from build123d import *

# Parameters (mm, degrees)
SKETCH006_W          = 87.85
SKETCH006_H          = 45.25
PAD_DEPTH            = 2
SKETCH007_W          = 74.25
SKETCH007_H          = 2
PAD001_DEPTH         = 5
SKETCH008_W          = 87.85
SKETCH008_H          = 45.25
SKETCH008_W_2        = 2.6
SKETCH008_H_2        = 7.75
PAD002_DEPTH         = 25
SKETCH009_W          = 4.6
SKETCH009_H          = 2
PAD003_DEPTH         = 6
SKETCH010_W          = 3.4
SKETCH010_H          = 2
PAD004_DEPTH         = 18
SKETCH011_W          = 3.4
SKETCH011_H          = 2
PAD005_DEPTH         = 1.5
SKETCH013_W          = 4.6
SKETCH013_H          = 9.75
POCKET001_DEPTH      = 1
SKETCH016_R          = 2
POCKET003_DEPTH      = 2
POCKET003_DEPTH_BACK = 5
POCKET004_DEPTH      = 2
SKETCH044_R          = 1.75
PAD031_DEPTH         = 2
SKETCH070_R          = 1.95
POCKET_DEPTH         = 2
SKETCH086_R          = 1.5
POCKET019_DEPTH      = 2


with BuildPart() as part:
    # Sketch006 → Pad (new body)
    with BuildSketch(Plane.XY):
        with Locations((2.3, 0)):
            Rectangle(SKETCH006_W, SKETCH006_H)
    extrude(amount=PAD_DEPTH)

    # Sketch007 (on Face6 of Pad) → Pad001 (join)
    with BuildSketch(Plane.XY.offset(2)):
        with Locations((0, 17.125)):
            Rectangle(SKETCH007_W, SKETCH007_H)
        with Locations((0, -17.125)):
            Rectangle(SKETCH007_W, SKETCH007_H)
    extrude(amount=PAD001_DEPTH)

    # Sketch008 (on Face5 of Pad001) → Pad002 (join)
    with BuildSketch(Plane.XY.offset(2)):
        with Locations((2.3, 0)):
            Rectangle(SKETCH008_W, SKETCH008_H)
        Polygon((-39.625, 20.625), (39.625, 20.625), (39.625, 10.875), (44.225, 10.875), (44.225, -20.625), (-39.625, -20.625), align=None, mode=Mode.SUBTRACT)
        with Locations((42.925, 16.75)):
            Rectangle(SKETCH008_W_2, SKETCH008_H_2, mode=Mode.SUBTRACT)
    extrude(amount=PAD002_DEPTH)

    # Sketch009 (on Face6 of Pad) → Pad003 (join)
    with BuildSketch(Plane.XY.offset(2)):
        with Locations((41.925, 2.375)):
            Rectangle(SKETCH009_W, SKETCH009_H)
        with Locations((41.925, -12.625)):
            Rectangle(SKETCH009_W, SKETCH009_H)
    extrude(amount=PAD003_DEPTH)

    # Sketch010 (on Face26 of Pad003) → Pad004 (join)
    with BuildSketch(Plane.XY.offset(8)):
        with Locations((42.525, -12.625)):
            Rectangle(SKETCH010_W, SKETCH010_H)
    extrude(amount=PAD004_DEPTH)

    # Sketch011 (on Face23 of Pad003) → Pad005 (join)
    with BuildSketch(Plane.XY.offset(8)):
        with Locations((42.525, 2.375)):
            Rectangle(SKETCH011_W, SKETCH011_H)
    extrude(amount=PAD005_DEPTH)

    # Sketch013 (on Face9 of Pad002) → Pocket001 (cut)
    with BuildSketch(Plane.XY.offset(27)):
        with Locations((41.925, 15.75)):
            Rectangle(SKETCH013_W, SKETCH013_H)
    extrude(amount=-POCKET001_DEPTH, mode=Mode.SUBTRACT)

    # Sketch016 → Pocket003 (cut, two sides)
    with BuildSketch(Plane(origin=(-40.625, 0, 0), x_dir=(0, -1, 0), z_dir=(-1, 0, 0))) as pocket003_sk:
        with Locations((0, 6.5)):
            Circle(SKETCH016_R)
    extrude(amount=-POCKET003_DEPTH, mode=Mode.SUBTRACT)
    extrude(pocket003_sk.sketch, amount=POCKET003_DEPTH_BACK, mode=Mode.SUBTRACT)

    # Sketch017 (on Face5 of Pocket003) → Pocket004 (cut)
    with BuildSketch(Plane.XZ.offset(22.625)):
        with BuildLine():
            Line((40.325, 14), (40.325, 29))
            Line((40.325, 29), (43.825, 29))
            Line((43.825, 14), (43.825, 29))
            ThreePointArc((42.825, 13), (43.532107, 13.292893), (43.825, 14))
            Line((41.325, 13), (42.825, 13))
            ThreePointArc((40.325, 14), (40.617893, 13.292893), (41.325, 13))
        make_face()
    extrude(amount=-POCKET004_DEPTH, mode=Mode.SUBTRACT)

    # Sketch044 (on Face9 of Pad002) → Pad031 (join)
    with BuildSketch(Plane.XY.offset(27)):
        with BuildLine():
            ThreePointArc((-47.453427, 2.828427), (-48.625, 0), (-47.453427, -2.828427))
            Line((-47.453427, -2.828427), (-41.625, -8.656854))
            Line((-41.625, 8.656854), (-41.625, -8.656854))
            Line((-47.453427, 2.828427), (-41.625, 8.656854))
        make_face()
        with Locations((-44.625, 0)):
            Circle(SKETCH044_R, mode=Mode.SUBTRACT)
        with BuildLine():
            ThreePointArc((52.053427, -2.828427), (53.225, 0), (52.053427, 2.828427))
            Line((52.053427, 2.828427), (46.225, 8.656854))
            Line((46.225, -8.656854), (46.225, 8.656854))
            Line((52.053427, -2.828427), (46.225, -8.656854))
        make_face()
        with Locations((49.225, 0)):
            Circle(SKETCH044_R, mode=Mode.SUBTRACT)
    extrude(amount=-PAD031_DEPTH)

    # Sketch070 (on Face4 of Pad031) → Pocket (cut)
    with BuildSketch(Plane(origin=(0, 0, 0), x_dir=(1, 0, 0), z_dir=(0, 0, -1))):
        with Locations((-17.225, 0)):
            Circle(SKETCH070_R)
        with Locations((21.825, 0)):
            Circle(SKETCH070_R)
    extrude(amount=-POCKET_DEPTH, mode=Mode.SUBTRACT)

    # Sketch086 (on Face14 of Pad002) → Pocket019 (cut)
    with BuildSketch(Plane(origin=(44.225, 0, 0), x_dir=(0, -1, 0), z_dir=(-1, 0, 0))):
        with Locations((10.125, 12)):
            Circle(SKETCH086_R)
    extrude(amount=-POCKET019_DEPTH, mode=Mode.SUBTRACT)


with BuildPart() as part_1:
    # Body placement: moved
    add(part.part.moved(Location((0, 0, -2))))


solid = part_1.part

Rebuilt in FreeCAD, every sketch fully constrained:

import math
import FreeCAD as App
import Part
import Sketcher
from FreeCAD import Vector


def add_polygon(sketch, points):
    """Adds a closed chain of lines whose ends are joined by coincident constraints."""
    first, n = sketch.GeometryCount, len(points)
    for a, b in zip(points, points[1:] + points[:1]):
        sketch.addGeometry(Part.LineSegment(App.Vector(*a, 0), App.Vector(*b, 0)), False)
    for i in range(n):
        sketch.addConstraint(Sketcher.Constraint("Coincident", first + i, 2, first + (i + 1) % n, 1))

doc = App.newDocument("Part")
params = doc.addObject("Spreadsheet::Sheet", "Params")
for row, (alias, value) in enumerate([
    ("sketch1_width", "87.85 mm"),
    ("sketch1_height", "45.25 mm"),
    ("pad1_length", "2 mm"),
    ("sketch2_height", "2 mm"),
    ("sketch2_width", "74.25 mm"),
    ("pad2_length", "5 mm"),
    ("sketch3_width", "4.6 mm"),
    ("sketch3_width2", "2.6 mm"),
    ("sketch3_height", "31.5 mm"),
    ("sketch3_width3", "87.85 mm"),
    ("sketch3_height2", "45.25 mm"),
    ("pad3_length", "25 mm"),
    ("sketch4_height", "2 mm"),
    ("sketch4_width", "4.6 mm"),
    ("pad4_length", "6 mm"),
    ("sketch5_height", "2 mm"),
    ("sketch5_width", "3.4 mm"),
    ("pad5_length", "18 mm"),
    ("sketch6_height", "2 mm"),
    ("sketch6_width", "3.4 mm"),
    ("pad6_length", "1.5 mm"),
    ("sketch7_width", "4.6 mm"),
    ("sketch7_height", "9.75 mm"),
    ("pocket1_length", "1 mm"),
    ("sketch8_diameter", "4 mm"),
    ("pocket2_length", "2 mm"),
    ("pocket2_length2", "5 mm"),
    ("sketch9_radius", "0.999999 mm"),
    ("sketch9_height", "15 mm"),
    ("sketch9_width", "1.5 mm"),
    ("pocket3_length", "2 mm"),
    ("sketch10_radius", "3.999999 mm"),
    ("sketch10_diameter", "3.5 mm"),
    ("pad7_length", "2 mm"),
    ("sketch11_diameter", "3.9 mm"),
    ("pocket4_length", "2 mm"),
    ("sketch12_diameter", "3 mm"),
    ("pocket5_length", "2 mm"),
], start=1):
    params.set(f"A{row}", alias)
    params.set(f"B{row}", "=" + value)
    params.setAlias(f"B{row}", alias)

body = doc.addObject("PartDesign::Body", "Body")

sketch1 = doc.addObject("Sketcher::SketchObject", "Sketch")
body.addObject(sketch1)
sketch1.AttachmentSupport = (doc.XY_Plane, [""])
sketch1.MapMode = "FlatFace"
add_polygon(sketch1, [(-42, 23), (-42, -23), (46, -23), (46, 23)])
sketch1.addConstraint(Sketcher.Constraint("Vertical", 0))
sketch1.addConstraint(Sketcher.Constraint("Horizontal", 1))
sketch1.addConstraint(Sketcher.Constraint("Vertical", 2))
sketch1.addConstraint(Sketcher.Constraint("Horizontal", 3))
sketch1.addConstraint(Sketcher.Constraint("DistanceX", 1, 1, 1, 2, 87.85))
sketch1.addConstraint(Sketcher.Constraint("DistanceY", 0, 2, 0, 1, 45.25))
sketch1.addConstraint(Sketcher.Constraint("DistanceX", 0, 2, -1, 1, 41.625))
sketch1.addConstraint(Sketcher.Constraint("DistanceY", 0, 2, -1, 1, 22.625))
sketch1.setExpression("Constraints[8]", "Params.sketch1_width")
sketch1.setExpression("Constraints[9]", "Params.sketch1_height")
pad1 = doc.addObject("PartDesign::Pad", "Pad")
body.addObject(pad1)
pad1.Profile = sketch1
pad1.setExpression("Length", "Params.pad1_length")

sketch2 = doc.addObject("Sketcher::SketchObject", "Sketch001")
body.addObject(sketch2)
sketch2.AttachmentSupport = (doc.XY_Plane, [""])
sketch2.MapMode = "FlatFace"
sketch2.AttachmentOffset = App.Placement(Vector(0, 0, 2), App.Rotation())
add_polygon(sketch2, [(-37.1, 18.1), (-37.1, 16.1), (37.1, 16.1), (37.1, 18.1)])
add_polygon(sketch2, [(-37.1, -16.1), (-37.1, -18.1), (37.1, -18.1), (37.1, -16.1)])
sketch2.addConstraint(Sketcher.Constraint("Vertical", 0))
sketch2.addConstraint(Sketcher.Constraint("Horizontal", 1))
sketch2.addConstraint(Sketcher.Constraint("Vertical", 2))
sketch2.addConstraint(Sketcher.Constraint("Horizontal", 3))
sketch2.addConstraint(Sketcher.Constraint("Vertical", 4))
sketch2.addConstraint(Sketcher.Constraint("Horizontal", 5))
sketch2.addConstraint(Sketcher.Constraint("Vertical", 6))
sketch2.addConstraint(Sketcher.Constraint("Horizontal", 7))
sketch2.addConstraint(Sketcher.Constraint("Symmetric", 2, 2, 4, 2, -1, 1))
sketch2.addConstraint(Sketcher.Constraint("Symmetric", 0, 2, 6, 2, -1, 1))
sketch2.addConstraint(Sketcher.Constraint("Vertical", 3, 2, 4, 2))
sketch2.addConstraint(Sketcher.Constraint("DistanceY", 0, 2, 0, 1, 2.0))
sketch2.addConstraint(Sketcher.Constraint("DistanceX", 1, 1, 1, 2, 74.25))
sketch2.addConstraint(Sketcher.Constraint("DistanceY", 4, 2, 0, 2, 34.25))
sketch2.setExpression("Constraints[19]", "Params.sketch2_height")
sketch2.setExpression("Constraints[20]", "Params.sketch2_width")
pad2 = doc.addObject("PartDesign::Pad", "Pad001")
body.addObject(pad2)
pad2.Profile = sketch2
pad2.setExpression("Length", "Params.pad2_length")

sketch3 = doc.addObject("Sketcher::SketchObject", "Sketch002")
body.addObject(sketch3)
sketch3.AttachmentSupport = (doc.XY_Plane, [""])
sketch3.MapMode = "FlatFace"
sketch3.AttachmentOffset = App.Placement(Vector(0, 0, 2), App.Rotation())
add_polygon(sketch3, [(-41.6, 22.6), (-41.6, -22.6), (46.2, -22.6), (46.2, 22.6)])
add_polygon(sketch3, [(-39.6, -20.6), (-39.6, 20.6), (39.6, 20.6), (39.6, 10.9), (44.2, 10.9), (44.2, -20.6)])
add_polygon(sketch3, [(44.2, 12.9), (41.6, 12.9), (41.6, 20.6), (44.2, 20.6)])
sketch3.addConstraint(Sketcher.Constraint("Vertical", 0))
sketch3.addConstraint(Sketcher.Constraint("Horizontal", 1))
sketch3.addConstraint(Sketcher.Constraint("Vertical", 2))
sketch3.addConstraint(Sketcher.Constraint("Horizontal", 3))
sketch3.addConstraint(Sketcher.Constraint("Vertical", 4))
sketch3.addConstraint(Sketcher.Constraint("Horizontal", 5))
sketch3.addConstraint(Sketcher.Constraint("Vertical", 6))
sketch3.addConstraint(Sketcher.Constraint("Horizontal", 7))
sketch3.addConstraint(Sketcher.Constraint("Vertical", 8))
sketch3.addConstraint(Sketcher.Constraint("Horizontal", 9))
sketch3.addConstraint(Sketcher.Constraint("Horizontal", 10))
sketch3.addConstraint(Sketcher.Constraint("Vertical", 11))
sketch3.addConstraint(Sketcher.Constraint("Horizontal", 12))
sketch3.addConstraint(Sketcher.Constraint("Vertical", 13))
sketch3.addConstraint(Sketcher.Constraint("Symmetric", 5, 2, 9, 2, -1, 1))
sketch3.addConstraint(Sketcher.Constraint("Symmetric", 8, 2, 12, 2, -1))
sketch3.addConstraint(Sketcher.Constraint("DistanceX", 7, 1, 7, 2, 4.6))
sketch3.addConstraint(Sketcher.Constraint("DistanceX", 10, 2, 10, 1, 2.6))
sketch3.addConstraint(Sketcher.Constraint("DistanceY", 8, 2, 8, 1, 31.5))
sketch3.addConstraint(Sketcher.Constraint("DistanceX", 3, 2, 4, 2, 2.0))
sketch3.addConstraint(Sketcher.Constraint("DistanceY", 4, 2, 3, 2, 2.0))
sketch3.addConstraint(Sketcher.Constraint("DistanceX", 7, 2, 2, 2, 2.0))
sketch3.addConstraint(Sketcher.Constraint("DistanceY", 1, 2, 8, 2, 2.0))
sketch3.addConstraint(Sketcher.Constraint("DistanceY", 6, 2, 10, 2, 2.0))
sketch3.addConstraint(Sketcher.Constraint("DistanceX", 1, 1, 1, 2, 87.85))
sketch3.addConstraint(Sketcher.Constraint("DistanceY", 0, 2, 0, 1, 45.25))
sketch3.setExpression("Constraints[30]", "Params.sketch3_width")
sketch3.setExpression("Constraints[31]", "Params.sketch3_width2")
sketch3.setExpression("Constraints[32]", "Params.sketch3_height")
sketch3.setExpression("Constraints[38]", "Params.sketch3_width3")
sketch3.setExpression("Constraints[39]", "Params.sketch3_height2")
pad3 = doc.addObject("PartDesign::Pad", "Pad002")
body.addObject(pad3)
pad3.Profile = sketch3
pad3.setExpression("Length", "Params.pad3_length")

sketch4 = doc.addObject("Sketcher::SketchObject", "Sketch003")
body.addObject(sketch4)
sketch4.AttachmentSupport = (doc.XY_Plane, [""])
sketch4.MapMode = "FlatFace"
sketch4.AttachmentOffset = App.Placement(Vector(0, 0, 2), App.Rotation())
add_polygon(sketch4, [(39.6, 3.4), (39.6, 1.4), (44.2, 1.4), (44.2, 3.4)])
add_polygon(sketch4, [(39.6, -11.6), (39.6, -13.6), (44.2, -13.6), (44.2, -11.6)])
sketch4.addConstraint(Sketcher.Constraint("Vertical", 0))
sketch4.addConstraint(Sketcher.Constraint("Horizontal", 1))
sketch4.addConstraint(Sketcher.Constraint("Vertical", 2))
sketch4.addConstraint(Sketcher.Constraint("Horizontal", 3))
sketch4.addConstraint(Sketcher.Constraint("Vertical", 4))
sketch4.addConstraint(Sketcher.Constraint("Horizontal", 5))
sketch4.addConstraint(Sketcher.Constraint("Vertical", 6))
sketch4.addConstraint(Sketcher.Constraint("Horizontal", 7))
sketch4.addConstraint(Sketcher.Constraint("Vertical", 3, 2, 4, 2))
sketch4.addConstraint(Sketcher.Constraint("Vertical", 2, 2, 5, 2))
sketch4.addConstraint(Sketcher.Constraint("Equal", 2, 4))
sketch4.addConstraint(Sketcher.Constraint("DistanceY", 0, 2, 0, 1, 2.0))
sketch4.addConstraint(Sketcher.Constraint("DistanceX", 1, 1, 1, 2, 4.6))
sketch4.addConstraint(Sketcher.Constraint("DistanceY", 4, 2, 0, 2, 15.0))
sketch4.addConstraint(Sketcher.Constraint("DistanceX", -1, 1, 0, 2, 39.625))
sketch4.addConstraint(Sketcher.Constraint("DistanceY", -1, 1, 0, 2, 1.375))
sketch4.setExpression("Constraints[19]", "Params.sketch4_height")
sketch4.setExpression("Constraints[20]", "Params.sketch4_width")
pad4 = doc.addObject("PartDesign::Pad", "Pad003")
body.addObject(pad4)
pad4.Profile = sketch4
pad4.setExpression("Length", "Params.pad4_length")

sketch5 = doc.addObject("Sketcher::SketchObject", "Sketch004")
body.addObject(sketch5)
sketch5.AttachmentSupport = (doc.XY_Plane, [""])
sketch5.MapMode = "FlatFace"
sketch5.AttachmentOffset = App.Placement(Vector(0, 0, 8), App.Rotation())
add_polygon(sketch5, [(40.8, -11.6), (40.8, -13.6), (44.2, -13.6), (44.2, -11.6)])
sketch5.addConstraint(Sketcher.Constraint("Vertical", 0))
sketch5.addConstraint(Sketcher.Constraint("Horizontal", 1))
sketch5.addConstraint(Sketcher.Constraint("Vertical", 2))
sketch5.addConstraint(Sketcher.Constraint("Horizontal", 3))
sketch5.addConstraint(Sketcher.Constraint("DistanceY", 0, 2, 0, 1, 2.0))
sketch5.addConstraint(Sketcher.Constraint("DistanceX", 1, 1, 1, 2, 3.4))
sketch5.addConstraint(Sketcher.Constraint("DistanceX", -1, 1, 0, 2, 40.825))
sketch5.addConstraint(Sketcher.Constraint("DistanceY", 0, 2, -1, 1, 13.625))
sketch5.setExpression("Constraints[8]", "Params.sketch5_height")
sketch5.setExpression("Constraints[9]", "Params.sketch5_width")
pad5 = doc.addObject("PartDesign::Pad", "Pad004")
body.addObject(pad5)
pad5.Profile = sketch5
pad5.setExpression("Length", "Params.pad5_length")

sketch6 = doc.addObject("Sketcher::SketchObject", "Sketch005")
body.addObject(sketch6)
sketch6.AttachmentSupport = (doc.XY_Plane, [""])
sketch6.MapMode = "FlatFace"
sketch6.AttachmentOffset = App.Placement(Vector(0, 0, 8), App.Rotation())
add_polygon(sketch6, [(40.8, 3.4), (40.8, 1.4), (44.2, 1.4), (44.2, 3.4)])
sketch6.addConstraint(Sketcher.Constraint("Vertical", 0))
sketch6.addConstraint(Sketcher.Constraint("Horizontal", 1))
sketch6.addConstraint(Sketcher.Constraint("Vertical", 2))
sketch6.addConstraint(Sketcher.Constraint("Horizontal", 3))
sketch6.addConstraint(Sketcher.Constraint("DistanceY", 0, 2, 0, 1, 2.0))
sketch6.addConstraint(Sketcher.Constraint("DistanceX", 1, 1, 1, 2, 3.4))
sketch6.addConstraint(Sketcher.Constraint("DistanceX", -1, 1, 0, 2, 40.825))
sketch6.addConstraint(Sketcher.Constraint("DistanceY", -1, 1, 0, 2, 1.375))
sketch6.setExpression("Constraints[8]", "Params.sketch6_height")
sketch6.setExpression("Constraints[9]", "Params.sketch6_width")
pad6 = doc.addObject("PartDesign::Pad", "Pad005")
body.addObject(pad6)
pad6.Profile = sketch6
pad6.setExpression("Length", "Params.pad6_length")

sketch7 = doc.addObject("Sketcher::SketchObject", "Sketch006")
body.addObject(sketch7)
sketch7.AttachmentSupport = (doc.XY_Plane, [""])
sketch7.MapMode = "FlatFace"
sketch7.AttachmentOffset = App.Placement(Vector(0, 0, 27), App.Rotation())
add_polygon(sketch7, [(39.6, 20.6), (39.6, 10.9), (44.2, 10.9), (44.2, 20.6)])
sketch7.addConstraint(Sketcher.Constraint("Vertical", 0))
sketch7.addConstraint(Sketcher.Constraint("Horizontal", 1))
sketch7.addConstraint(Sketcher.Constraint("Vertical", 2))
sketch7.addConstraint(Sketcher.Constraint("Horizontal", 3))
sketch7.addConstraint(Sketcher.Constraint("DistanceX", 1, 1, 1, 2, 4.6))
sketch7.addConstraint(Sketcher.Constraint("DistanceY", 0, 2, 0, 1, 9.75))
sketch7.addConstraint(Sketcher.Constraint("DistanceX", -1, 1, 0, 2, 39.625))
sketch7.addConstraint(Sketcher.Constraint("DistanceY", -1, 1, 0, 2, 10.875))
sketch7.setExpression("Constraints[8]", "Params.sketch7_width")
sketch7.setExpression("Constraints[9]", "Params.sketch7_height")
pocket1 = doc.addObject("PartDesign::Pocket", "Pocket")
body.addObject(pocket1)
pocket1.Profile = sketch7
pocket1.setExpression("Length", "Params.pocket1_length")

sketch8 = doc.addObject("Sketcher::SketchObject", "Sketch007")
body.addObject(sketch8)
sketch8.AttachmentSupport = (doc.YZ_Plane, [""])
sketch8.MapMode = "FlatFace"
sketch8.AttachmentOffset = App.Placement(Vector(0, 0, -40.625), App.Rotation())
sketch8.addGeometry(Part.Circle(Vector(0, 6.5, 0), Vector(0, 0, 1), 2), False)
sketch8.addConstraint(Sketcher.Constraint("PointOnObject", 0, 3, -2))
sketch8.addConstraint(Sketcher.Constraint("Diameter", 0, 4.0))
sketch8.addConstraint(Sketcher.Constraint("DistanceY", -1, 1, 0, 3, 6.5))
sketch8.setExpression("Constraints[1]", "Params.sketch8_diameter")
pocket2 = doc.addObject("PartDesign::Pocket", "Pocket001")
body.addObject(pocket2)
pocket2.Profile = sketch8
pocket2.Type = "TwoLengths"
pocket2.setExpression("Length", "Params.pocket2_length")
pocket2.setExpression("Length2", "Params.pocket2_length2")
pocket2.Reversed = True

sketch9 = doc.addObject("Sketcher::SketchObject", "Sketch008")
body.addObject(sketch9)
sketch9.AttachmentSupport = (doc.XZ_Plane, [""])
sketch9.MapMode = "FlatFace"
sketch9.AttachmentOffset = App.Placement(Vector(0, 0, 22.625), App.Rotation())
sketch9.addGeometry(Part.LineSegment(Vector(40.3, 29, 0), Vector(40.3, 14, 0)), False)
sketch9.addGeometry(Part.ArcOfCircle(Part.Circle(Vector(41.3, 14, 0), Vector(0, 0, 1), 1), math.radians(180), math.radians(270)), False)
sketch9.addGeometry(Part.LineSegment(Vector(41.3, 13, 0), Vector(42.8, 13, 0)), False)
sketch9.addGeometry(Part.ArcOfCircle(Part.Circle(Vector(42.8, 14, 0), Vector(0, 0, 1), 1), math.radians(-90), math.radians(0)), False)
sketch9.addGeometry(Part.LineSegment(Vector(43.8, 14, 0), Vector(43.8, 29, 0)), False)
sketch9.addGeometry(Part.LineSegment(Vector(43.8, 29, 0), Vector(40.3, 29, 0)), False)
sketch9.addConstraint(Sketcher.Constraint("Tangent", 0, 2, 1, 1))
sketch9.addConstraint(Sketcher.Constraint("Tangent", 1, 2, 2, 1))
sketch9.addConstraint(Sketcher.Constraint("Tangent", 2, 2, 3, 1))
sketch9.addConstraint(Sketcher.Constraint("Tangent", 3, 2, 4, 1))
sketch9.addConstraint(Sketcher.Constraint("Coincident", 4, 2, 5, 1))
sketch9.addConstraint(Sketcher.Constraint("Coincident", 5, 2, 0, 1))
sketch9.addConstraint(Sketcher.Constraint("Vertical", 0))
sketch9.addConstraint(Sketcher.Constraint("Horizontal", 2))
sketch9.addConstraint(Sketcher.Constraint("Vertical", 4))
sketch9.addConstraint(Sketcher.Constraint("Horizontal", 5))
sketch9.addConstraint(Sketcher.Constraint("Equal", 1, 3))
sketch9.addConstraint(Sketcher.Constraint("Radius", 1, 0.999999))
sketch9.addConstraint(Sketcher.Constraint("DistanceY", 0, 2, 0, 1, 15.0))
sketch9.addConstraint(Sketcher.Constraint("DistanceX", 2, 1, 2, 2, 1.5))
sketch9.addConstraint(Sketcher.Constraint("DistanceY", -1, 1, 1, 3, 13.999999))
sketch9.addConstraint(Sketcher.Constraint("DistanceX", -1, 1, 1, 3, 41.324999))
sketch9.setExpression("Constraints[11]", "Params.sketch9_radius")
sketch9.setExpression("Constraints[12]", "Params.sketch9_height")
sketch9.setExpression("Constraints[13]", "Params.sketch9_width")
pocket3 = doc.addObject("PartDesign::Pocket", "Pocket002")
body.addObject(pocket3)
pocket3.Profile = sketch9
pocket3.setExpression("Length", "Params.pocket3_length")

sketch10 = doc.addObject("Sketcher::SketchObject", "Sketch009")
body.addObject(sketch10)
sketch10.AttachmentSupport = (doc.XY_Plane, [""])
sketch10.MapMode = "FlatFace"
sketch10.AttachmentOffset = App.Placement(Vector(0, 0, 27), App.Rotation())
sketch10.addGeometry(Part.ArcOfCircle(Part.Circle(Vector(-44.6, 0, 0), Vector(0, 0, 1), 4), math.radians(135), math.radians(225)), False)
sketch10.addGeometry(Part.LineSegment(Vector(-47.5, -2.8, 0), Vector(-41.6, -8.7, 0)), False)
sketch10.addGeometry(Part.LineSegment(Vector(-41.6, -8.7, 0), Vector(-41.6, 8.7, 0)), False)
sketch10.addGeometry(Part.LineSegment(Vector(-41.6, 8.7, 0), Vector(-47.5, 2.8, 0)), False)
sketch10.addGeometry(Part.Circle(Vector(-44.6, 0, 0), Vector(0, 0, 1), 1.8), False)
sketch10.addGeometry(Part.ArcOfCircle(Part.Circle(Vector(49.2, 0, 0), Vector(0, 0, 1), 4), math.radians(-45), math.radians(45)), False)
sketch10.addGeometry(Part.LineSegment(Vector(52.1, 2.8, 0), Vector(46.2, 8.7, 0)), False)
sketch10.addGeometry(Part.LineSegment(Vector(46.2, 8.7, 0), Vector(46.2, -8.7, 0)), False)
sketch10.addGeometry(Part.LineSegment(Vector(46.2, -8.7, 0), Vector(52.1, -2.8, 0)), False)
sketch10.addGeometry(Part.Circle(Vector(49.2, 0, 0), Vector(0, 0, 1), 1.8), False)
sketch10.addConstraint(Sketcher.Constraint("Tangent", 0, 2, 1, 1))
sketch10.addConstraint(Sketcher.Constraint("Coincident", 1, 2, 2, 1))
sketch10.addConstraint(Sketcher.Constraint("Coincident", 2, 2, 3, 1))
sketch10.addConstraint(Sketcher.Constraint("Tangent", 3, 2, 0, 1))
sketch10.addConstraint(Sketcher.Constraint("Tangent", 5, 2, 6, 1))
sketch10.addConstraint(Sketcher.Constraint("Coincident", 6, 2, 7, 1))
sketch10.addConstraint(Sketcher.Constraint("Coincident", 7, 2, 8, 1))
sketch10.addConstraint(Sketcher.Constraint("Tangent", 8, 2, 5, 1))
sketch10.addConstraint(Sketcher.Constraint("Vertical", 2))
sketch10.addConstraint(Sketcher.Constraint("Vertical", 7))
sketch10.addConstraint(Sketcher.Constraint("Coincident", 4, 3, 0, 3))
sketch10.addConstraint(Sketcher.Constraint("Coincident", 9, 3, 5, 3))
sketch10.addConstraint(Sketcher.Constraint("Equal", 0, 5))
sketch10.addConstraint(Sketcher.Constraint("Equal", 4, 9))
sketch10.addConstraint(Sketcher.Constraint("Symmetric", 0, 2, 3, 2, -1))
sketch10.addConstraint(Sketcher.Constraint("Symmetric", 5, 2, 8, 2, -1))
sketch10.addConstraint(Sketcher.Constraint("Perpendicular", 1, 3))
sketch10.addConstraint(Sketcher.Constraint("Perpendicular", 3, 6))
sketch10.addConstraint(Sketcher.Constraint("Horizontal", 2, 2, 6, 2))
sketch10.addConstraint(Sketcher.Constraint("Radius", 0, 3.999999))
sketch10.addConstraint(Sketcher.Constraint("Diameter", 4, 3.5))
sketch10.addConstraint(Sketcher.Constraint("DistanceX", 4, 3, 1, 2, 3.0))
sketch10.addConstraint(Sketcher.Constraint("DistanceX", 4, 3, 5, 3, 93.850001))
sketch10.addConstraint(Sketcher.Constraint("DistanceX", 0, 3, -1, 1, 44.625001))
sketch10.setExpression("Constraints[19]", "Params.sketch10_radius")
sketch10.setExpression("Constraints[20]", "Params.sketch10_diameter")
pad7 = doc.addObject("PartDesign::Pad", "Pad006")
body.addObject(pad7)
pad7.Profile = sketch10
pad7.setExpression("Length", "Params.pad7_length")
pad7.Reversed = True

sketch11 = doc.addObject("Sketcher::SketchObject", "Sketch010")
body.addObject(sketch11)
sketch11.AttachmentSupport = (doc.XY_Plane, [""])
sketch11.MapMode = "FlatFace"
sketch11.addGeometry(Part.Circle(Vector(-17.2, 0, 0), Vector(0, 0, 1), 1.9), False)
sketch11.addGeometry(Part.Circle(Vector(21.8, 0, 0), Vector(0, 0, 1), 1.9), False)
sketch11.addConstraint(Sketcher.Constraint("Equal", 0, 1))
sketch11.addConstraint(Sketcher.Constraint("PointOnObject", 0, 3, -1))
sketch11.addConstraint(Sketcher.Constraint("PointOnObject", 1, 3, -1))
sketch11.addConstraint(Sketcher.Constraint("Diameter", 0, 3.9))
sketch11.addConstraint(Sketcher.Constraint("DistanceX", 0, 3, 1, 3, 39.05))
sketch11.addConstraint(Sketcher.Constraint("DistanceX", 0, 3, -1, 1, 17.225))
sketch11.setExpression("Constraints[3]", "Params.sketch11_diameter")
pocket4 = doc.addObject("PartDesign::Pocket", "Pocket003")
body.addObject(pocket4)
pocket4.Profile = sketch11
pocket4.setExpression("Length", "Params.pocket4_length")
pocket4.Reversed = True

sketch12 = doc.addObject("Sketcher::SketchObject", "Sketch011")
body.addObject(sketch12)
sketch12.AttachmentSupport = (doc.YZ_Plane, [""])
sketch12.MapMode = "FlatFace"
sketch12.AttachmentOffset = App.Placement(Vector(0, 0, 44.225), App.Rotation())
sketch12.addGeometry(Part.Circle(Vector(-10.1, 12, 0), Vector(0, 0, 1), 1.5), False)
sketch12.addConstraint(Sketcher.Constraint("Diameter", 0, 3.0))
sketch12.addConstraint(Sketcher.Constraint("DistanceY", -1, 1, 0, 3, 12.0))
sketch12.addConstraint(Sketcher.Constraint("DistanceX", 0, 3, -1, 1, 10.125))
sketch12.setExpression("Constraints[0]", "Params.sketch12_diameter")
pocket5 = doc.addObject("PartDesign::Pocket", "Pocket004")
body.addObject(pocket5)
pocket5.Profile = sketch12
pocket5.setExpression("Length", "Params.pocket5_length")
pocket5.Reversed = True
body2 = doc.addObject("PartDesign::Body", "Body001")
doc.recompute()

body.Placement = App.Placement(Vector(0, 0, -2), App.Rotation(Vector(0, 0, 1), 0))
boolean = doc.addObject("PartDesign::Boolean", "Boolean")
body2.addObject(boolean)
boolean.Type = "Fuse"
boolean.addObjects([body])

doc.recompute()
